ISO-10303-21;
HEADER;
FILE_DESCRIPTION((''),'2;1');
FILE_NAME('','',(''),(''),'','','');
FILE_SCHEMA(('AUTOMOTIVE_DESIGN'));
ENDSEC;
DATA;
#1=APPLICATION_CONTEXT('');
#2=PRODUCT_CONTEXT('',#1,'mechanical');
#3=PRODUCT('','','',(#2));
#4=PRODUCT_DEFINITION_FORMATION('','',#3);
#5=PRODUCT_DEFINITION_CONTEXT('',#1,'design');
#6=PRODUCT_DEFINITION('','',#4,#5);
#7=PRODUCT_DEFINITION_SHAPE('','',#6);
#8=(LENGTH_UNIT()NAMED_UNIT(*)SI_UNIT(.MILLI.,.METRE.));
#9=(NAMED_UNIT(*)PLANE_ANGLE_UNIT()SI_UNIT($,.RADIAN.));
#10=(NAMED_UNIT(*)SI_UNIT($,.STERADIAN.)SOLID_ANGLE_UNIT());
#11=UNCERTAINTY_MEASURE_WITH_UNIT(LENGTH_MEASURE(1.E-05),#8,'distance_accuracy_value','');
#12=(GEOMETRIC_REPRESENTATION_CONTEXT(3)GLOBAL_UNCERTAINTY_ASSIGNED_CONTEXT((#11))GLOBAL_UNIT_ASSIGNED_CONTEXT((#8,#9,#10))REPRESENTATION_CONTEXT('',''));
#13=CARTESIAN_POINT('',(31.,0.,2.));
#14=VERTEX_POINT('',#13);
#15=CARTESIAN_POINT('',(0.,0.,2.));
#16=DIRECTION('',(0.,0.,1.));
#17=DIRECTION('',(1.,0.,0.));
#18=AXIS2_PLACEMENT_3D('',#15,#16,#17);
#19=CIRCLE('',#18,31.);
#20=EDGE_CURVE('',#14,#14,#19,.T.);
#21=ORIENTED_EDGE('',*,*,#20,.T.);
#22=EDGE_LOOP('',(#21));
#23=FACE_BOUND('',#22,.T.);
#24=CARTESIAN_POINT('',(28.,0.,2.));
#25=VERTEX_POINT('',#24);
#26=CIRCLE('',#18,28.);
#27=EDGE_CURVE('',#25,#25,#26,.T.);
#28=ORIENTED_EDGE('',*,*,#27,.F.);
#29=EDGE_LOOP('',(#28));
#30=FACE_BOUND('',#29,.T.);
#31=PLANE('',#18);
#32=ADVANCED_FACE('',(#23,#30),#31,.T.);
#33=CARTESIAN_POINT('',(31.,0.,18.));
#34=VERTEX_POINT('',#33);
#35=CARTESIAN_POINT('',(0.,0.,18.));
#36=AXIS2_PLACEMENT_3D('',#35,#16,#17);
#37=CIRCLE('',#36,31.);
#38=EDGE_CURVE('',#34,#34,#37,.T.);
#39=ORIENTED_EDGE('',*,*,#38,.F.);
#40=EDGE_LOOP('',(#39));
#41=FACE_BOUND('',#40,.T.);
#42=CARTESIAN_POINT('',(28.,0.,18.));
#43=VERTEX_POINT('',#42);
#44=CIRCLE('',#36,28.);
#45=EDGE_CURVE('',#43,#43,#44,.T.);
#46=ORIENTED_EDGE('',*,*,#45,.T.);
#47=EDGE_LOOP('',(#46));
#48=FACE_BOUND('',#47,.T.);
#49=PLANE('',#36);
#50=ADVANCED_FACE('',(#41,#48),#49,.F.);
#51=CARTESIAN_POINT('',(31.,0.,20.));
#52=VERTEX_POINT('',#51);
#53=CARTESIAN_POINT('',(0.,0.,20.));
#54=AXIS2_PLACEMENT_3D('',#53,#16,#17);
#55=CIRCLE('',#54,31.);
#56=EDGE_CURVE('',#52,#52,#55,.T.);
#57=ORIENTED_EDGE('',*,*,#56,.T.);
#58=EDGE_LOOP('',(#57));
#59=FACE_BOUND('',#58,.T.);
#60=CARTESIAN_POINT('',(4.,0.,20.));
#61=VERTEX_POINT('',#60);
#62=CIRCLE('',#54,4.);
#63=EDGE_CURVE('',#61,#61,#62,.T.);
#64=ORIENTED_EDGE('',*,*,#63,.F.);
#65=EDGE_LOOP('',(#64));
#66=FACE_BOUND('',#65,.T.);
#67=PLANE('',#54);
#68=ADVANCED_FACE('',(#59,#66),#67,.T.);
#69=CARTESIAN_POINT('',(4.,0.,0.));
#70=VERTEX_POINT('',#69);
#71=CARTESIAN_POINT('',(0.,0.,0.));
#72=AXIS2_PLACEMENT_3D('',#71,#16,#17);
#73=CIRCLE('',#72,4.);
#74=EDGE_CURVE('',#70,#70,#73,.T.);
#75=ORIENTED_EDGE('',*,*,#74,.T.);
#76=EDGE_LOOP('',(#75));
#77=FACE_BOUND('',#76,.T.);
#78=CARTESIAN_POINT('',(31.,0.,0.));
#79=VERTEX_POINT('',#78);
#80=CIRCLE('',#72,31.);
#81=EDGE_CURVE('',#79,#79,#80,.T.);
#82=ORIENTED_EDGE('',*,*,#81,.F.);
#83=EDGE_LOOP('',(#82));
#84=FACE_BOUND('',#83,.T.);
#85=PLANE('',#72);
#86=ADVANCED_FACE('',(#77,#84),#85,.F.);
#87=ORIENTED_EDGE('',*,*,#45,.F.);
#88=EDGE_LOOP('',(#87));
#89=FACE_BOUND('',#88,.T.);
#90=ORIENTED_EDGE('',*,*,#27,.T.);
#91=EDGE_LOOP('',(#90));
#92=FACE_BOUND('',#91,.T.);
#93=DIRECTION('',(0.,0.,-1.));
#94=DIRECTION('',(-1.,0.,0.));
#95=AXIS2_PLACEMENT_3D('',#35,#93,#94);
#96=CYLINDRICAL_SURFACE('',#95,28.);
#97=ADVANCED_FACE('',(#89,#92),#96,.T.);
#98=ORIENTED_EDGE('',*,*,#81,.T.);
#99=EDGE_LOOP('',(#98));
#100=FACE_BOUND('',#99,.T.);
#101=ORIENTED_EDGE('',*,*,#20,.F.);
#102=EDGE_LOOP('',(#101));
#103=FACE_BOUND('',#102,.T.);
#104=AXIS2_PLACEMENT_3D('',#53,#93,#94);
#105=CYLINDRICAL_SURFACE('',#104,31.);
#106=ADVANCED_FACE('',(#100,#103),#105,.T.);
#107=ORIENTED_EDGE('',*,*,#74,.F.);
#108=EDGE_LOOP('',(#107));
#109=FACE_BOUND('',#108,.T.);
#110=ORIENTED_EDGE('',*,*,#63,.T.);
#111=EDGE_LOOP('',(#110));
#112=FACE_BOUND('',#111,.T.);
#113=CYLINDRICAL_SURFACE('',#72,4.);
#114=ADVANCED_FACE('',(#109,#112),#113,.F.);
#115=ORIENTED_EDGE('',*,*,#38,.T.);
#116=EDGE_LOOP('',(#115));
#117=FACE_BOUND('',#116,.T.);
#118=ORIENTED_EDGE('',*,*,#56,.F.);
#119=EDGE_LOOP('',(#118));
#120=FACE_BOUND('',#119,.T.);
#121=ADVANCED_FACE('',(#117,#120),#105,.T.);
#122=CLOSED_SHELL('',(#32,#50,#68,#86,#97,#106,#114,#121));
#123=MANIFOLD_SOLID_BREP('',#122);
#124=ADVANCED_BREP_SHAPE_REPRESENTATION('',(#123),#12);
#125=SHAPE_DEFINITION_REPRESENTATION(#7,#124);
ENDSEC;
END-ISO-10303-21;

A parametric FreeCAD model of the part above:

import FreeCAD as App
import Part
import Sketcher
from FreeCAD import Vector

doc = App.newDocument("Part")
params = doc.addObject("Spreadsheet::Sheet", "Params")
for row, (alias, value) in enumerate([
    ("sketch1_diameter", "62 mm"),
    ("pad1_length", "20 mm"),
    ("sketch2_diameter", "62 mm"),
    ("sketch2_diameter2", "56 mm"),
    ("pocket1_length", "16 mm"),
    ("sketch3_diameter", "8 mm"),
], start=1):
    params.set(f"A{row}", alias)
    params.set(f"B{row}", "=" + value)
    params.setAlias(f"B{row}", alias)

body = doc.addObject("PartDesign::Body", "Body")

# Sketch on XY plane
sketch1 = body.newObject("Sketcher::SketchObject", "Sketch")
sketch1.AttachmentSupport = (doc.getObject("XY_Plane"), [""])
sketch1.MapMode = "FlatFace"
sketch1.addGeometry(Part.Circle(Vector(0, 0, 0), Vector(0, 0, 1), 31), False)
sketch1.addConstraint([
    Sketcher.Constraint("Coincident", 0, 3, -1, 1),
    Sketcher.Constraint("Diameter", 0, 62.0),
])
sketch1.setExpression("Constraints[1]", "Params.sketch1_diameter")
pad1 = body.newObject("PartDesign::Pad", "Pad")
pad1.Profile = sketch1
pad1.setExpression("Length", "Params.pad1_length")

# Sketch on XY plane
sketch2 = body.newObject("Sketcher::SketchObject", "Sketch001")
sketch2.AttachmentSupport = (doc.getObject("XY_Plane"), [""])
sketch2.MapMode = "FlatFace"
sketch2.AttachmentOffset = App.Placement(Vector(0, 0, 2), App.Rotation())
sketch2.addGeometry([
    Part.Circle(Vector(0, 0, 0), Vector(0, 0, 1), 31),
    Part.Circle(Vector(0, 0, 0), Vector(0, 0, 1), 28),
], False)
sketch2.addConstraint([
    Sketcher.Constraint("Coincident", 0, 3, -1, 1),
    Sketcher.Constraint("Coincident", 1, 3, -1, 1),
    Sketcher.Constraint("Diameter", 0, 62.0),
    Sketcher.Constraint("Diameter", 1, 56.0),
])
sketch2.setExpression("Constraints[2]", "Params.sketch2_diameter")
sketch2.setExpression("Constraints[3]", "Params.sketch2_diameter2")
pocket1 = body.newObject("PartDesign::Pocket", "Pocket")
pocket1.Profile = sketch2
pocket1.setExpression("Length", "Params.pocket1_length")
pocket1.Reversed = True

# Sketch on XY plane
sketch3 = body.newObject("Sketcher::SketchObject", "Sketch002")
sketch3.AttachmentSupport = (doc.getObject("XY_Plane"), [""])
sketch3.MapMode = "FlatFace"
sketch3.AttachmentOffset = App.Placement(Vector(0, 0, 20), App.Rotation())
sketch3.addGeometry(Part.Circle(Vector(0, 0, 0), Vector(0, 0, 1), 4), False)
sketch3.addConstraint([
    Sketcher.Constraint("Coincident", 0, 3, -1, 1),
    Sketcher.Constraint("Diameter", 0, 8.0),
])
sketch3.setExpression("Constraints[1]", "Params.sketch3_diameter")
pocket2 = body.newObject("PartDesign::Pocket", "Pocket001")
pocket2.Profile = sketch3
pocket2.Type = "ThroughAll"

doc.recompute()
